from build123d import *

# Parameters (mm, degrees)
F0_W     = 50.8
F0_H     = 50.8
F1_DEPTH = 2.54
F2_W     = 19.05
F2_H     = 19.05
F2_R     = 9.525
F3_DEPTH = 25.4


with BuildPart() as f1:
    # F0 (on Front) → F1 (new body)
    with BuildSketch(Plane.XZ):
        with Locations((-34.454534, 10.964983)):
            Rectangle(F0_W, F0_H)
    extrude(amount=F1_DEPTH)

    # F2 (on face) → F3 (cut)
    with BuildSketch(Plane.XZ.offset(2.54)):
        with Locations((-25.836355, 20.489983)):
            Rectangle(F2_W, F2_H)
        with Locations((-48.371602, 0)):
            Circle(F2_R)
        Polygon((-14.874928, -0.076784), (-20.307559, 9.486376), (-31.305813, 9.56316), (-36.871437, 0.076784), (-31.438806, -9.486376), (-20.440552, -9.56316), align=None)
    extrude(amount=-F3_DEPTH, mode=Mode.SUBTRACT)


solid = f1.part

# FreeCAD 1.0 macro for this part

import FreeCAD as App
import Part
import Sketcher

V = App.Vector
Q = App.Units.Quantity

doc = App.newDocument("Part")
body = doc.addObject("PartDesign::Body", "Body")

# Sketch on XZ plane
sketch1 = body.newObject("Sketcher::SketchObject", "Sketch")
sketch1.AttachmentSupport = (doc.getObject("XZ_Plane"), [""])
sketch1.MapMode = "FlatFace"
sketch1.addGeometry([
    Part.LineSegment(V(-59.854534, 36.364983, 0), V(-59.854534, -14.435017, 0)),
    Part.LineSegment(V(-59.854534, -14.435017, 0), V(-9.054534, -14.435017, 0)),
    Part.LineSegment(V(-9.054534, -14.435017, 0), V(-9.054534, 36.364983, 0)),
    Part.LineSegment(V(-9.054534, 36.364983, 0), V(-59.854534, 36.364983, 0)),
], False)
sketch1.addConstraint([
    Sketcher.Constraint("Coincident", 0, 2, 1, 1),
    Sketcher.Constraint("Coincident", 1, 2, 2, 1),
    Sketcher.Constraint("Coincident", 2, 2, 3, 1),
    Sketcher.Constraint("Coincident", 3, 2, 0, 1),
    Sketcher.Constraint("Vertical", 0),
    Sketcher.Constraint("Horizontal", 1),
    Sketcher.Constraint("Vertical", 2),
    Sketcher.Constraint("Horizontal", 3),
    Sketcher.Constraint("Equal", 3, 0),
    Sketcher.Constraint("DistanceX", 1, 1, 1, 2, Q("2 in")),
    Sketcher.Constraint("DistanceX", 0, 2, -1, 1, 59.854534),
    Sketcher.Constraint("DistanceY", 0, 2, -1, 1, 14.435017),
])
pad1 = body.newObject("PartDesign::Pad", "Pad")
pad1.Profile = sketch1
pad1.Length = Q("0.1 in")

# Sketch on XZ plane
sketch2 = body.newObject("Sketcher::SketchObject", "Sketch001")
sketch2.AttachmentSupport = (doc.getObject("XZ_Plane"), [""])
sketch2.MapMode = "FlatFace"
sketch2.AttachmentOffset = App.Placement(V(0, 0, 0.1 * 25.4), App.Rotation())
sketch2.addGeometry([
    Part.LineSegment(V(-35.361355, 30.014983, 0), V(-35.361355, 10.964983, 0)),  # 0
    Part.LineSegment(V(-35.361355, 10.964983, 0), V(-16.311355, 10.964983, 0)),  # 1
    Part.LineSegment(V(-16.311355, 10.964983, 0), V(-16.311355, 30.014983, 0)),  # 2
    Part.LineSegment(V(-16.311355, 30.014983, 0), V(-35.361355, 30.014983, 0)),  # 3
    Part.Circle(V(-48.371602, 0, 0), V(0, 0, 1), 9.525),  # 4
    Part.LineSegment(V(-14.874928, -0.076784, 0), V(-20.307559, 9.486376, 0)),  # 5
    Part.LineSegment(V(-20.307559, 9.486376, 0), V(-31.305813, 9.56316, 0)),  # 6
    Part.LineSegment(V(-31.305813, 9.56316, 0), V(-36.871437, 0.076784, 0)),  # 7
    Part.LineSegment(V(-36.871437, 0.076784, 0), V(-31.438806, -9.486376, 0)),  # 8
    Part.LineSegment(V(-31.438806, -9.486376, 0), V(-20.440552, -9.56316, 0)),  # 9
    Part.LineSegment(V(-20.440552, -9.56316, 0), V(-14.874928, -0.076784, 0)),  # 10
], False)
sketch2.addConstraint([
    Sketcher.Constraint("Coincident", 0, 2, 1, 1),
    Sketcher.Constraint("Coincident", 1, 2, 2, 1),
    Sketcher.Constraint("Coincident", 2, 2, 3, 1),
    Sketcher.Constraint("Coincident", 3, 2, 0, 1),
    Sketcher.Constraint("Coincident", 5, 2, 6, 1),
    Sketcher.Constraint("Coincident", 6, 2, 7, 1),
    Sketcher.Constraint("Coincident", 7, 2, 8, 1),
    Sketcher.Constraint("Coincident", 8, 2, 9, 1),
    Sketcher.Constraint("Coincident", 9, 2, 10, 1),
    Sketcher.Constraint("Coincident", 10, 2, 5, 1),
    Sketcher.Constraint("Vertical", 0),
    Sketcher.Constraint("Horizontal", 1),
    Sketcher.Constraint("Vertical", 2),
    Sketcher.Constraint("Horizontal", 3),
    Sketcher.Constraint("PointOnObject", 4, 3, -1),
    Sketcher.Constraint("Diameter", 4, Q("0.75 in")),
    Sketcher.Constraint("DistanceX", 1, 1, 1, 2, Q("0.75 in")),
    Sketcher.Constraint("DistanceY", 0, 2, 0, 1, Q("0.75 in")),
    Sketcher.Constraint("DistanceY", 7, 2, 0, 2, 10.888199),
    Sketcher.Constraint("DistanceX", 5, 2, -1, 1, 20.307559),
    Sketcher.Constraint("DistanceY", -1, 1, 6, 2, 9.56316),
    Sketcher.Constraint("DistanceX", 9, 2, -1, 1, 20.440552),
    Sketcher.Constraint("DistanceY", 9, 2, -1, 1, 9.56316),
    Sketcher.Constraint("DistanceX", 6, 2, 1, 2, 14.994458),
    Sketcher.Constraint("DistanceX", 4, 3, 6, 2, 17.065789),
    Sketcher.Constraint("DistanceX", 7, 2, 0, 2, 1.510082),
    Sketcher.Constraint("DistanceX", 7, 2, 8, 2, 5.432631),
    Sketcher.Constraint("DistanceY", 8, 2, 7, 2, 9.56316),
    Sketcher.Constraint("DistanceY", 8, 2, 5, 2, 18.972752),
    Sketcher.Constraint("DistanceX", 6, 2, 9, 2, 10.865261),
    Sketcher.Constraint("DistanceX", 5, 2, 10, 2, 5.432631),
    Sketcher.Constraint("DistanceY", 10, 2, 5, 2, 9.56316),
    Sketcher.Constraint("Distance", 7, 10.998523),
])
pocket1 = body.newObject("PartDesign::Pocket", "Pocket")
pocket1.Profile = sketch2
pocket1.Length = Q("1 in")

doc.recompute()
